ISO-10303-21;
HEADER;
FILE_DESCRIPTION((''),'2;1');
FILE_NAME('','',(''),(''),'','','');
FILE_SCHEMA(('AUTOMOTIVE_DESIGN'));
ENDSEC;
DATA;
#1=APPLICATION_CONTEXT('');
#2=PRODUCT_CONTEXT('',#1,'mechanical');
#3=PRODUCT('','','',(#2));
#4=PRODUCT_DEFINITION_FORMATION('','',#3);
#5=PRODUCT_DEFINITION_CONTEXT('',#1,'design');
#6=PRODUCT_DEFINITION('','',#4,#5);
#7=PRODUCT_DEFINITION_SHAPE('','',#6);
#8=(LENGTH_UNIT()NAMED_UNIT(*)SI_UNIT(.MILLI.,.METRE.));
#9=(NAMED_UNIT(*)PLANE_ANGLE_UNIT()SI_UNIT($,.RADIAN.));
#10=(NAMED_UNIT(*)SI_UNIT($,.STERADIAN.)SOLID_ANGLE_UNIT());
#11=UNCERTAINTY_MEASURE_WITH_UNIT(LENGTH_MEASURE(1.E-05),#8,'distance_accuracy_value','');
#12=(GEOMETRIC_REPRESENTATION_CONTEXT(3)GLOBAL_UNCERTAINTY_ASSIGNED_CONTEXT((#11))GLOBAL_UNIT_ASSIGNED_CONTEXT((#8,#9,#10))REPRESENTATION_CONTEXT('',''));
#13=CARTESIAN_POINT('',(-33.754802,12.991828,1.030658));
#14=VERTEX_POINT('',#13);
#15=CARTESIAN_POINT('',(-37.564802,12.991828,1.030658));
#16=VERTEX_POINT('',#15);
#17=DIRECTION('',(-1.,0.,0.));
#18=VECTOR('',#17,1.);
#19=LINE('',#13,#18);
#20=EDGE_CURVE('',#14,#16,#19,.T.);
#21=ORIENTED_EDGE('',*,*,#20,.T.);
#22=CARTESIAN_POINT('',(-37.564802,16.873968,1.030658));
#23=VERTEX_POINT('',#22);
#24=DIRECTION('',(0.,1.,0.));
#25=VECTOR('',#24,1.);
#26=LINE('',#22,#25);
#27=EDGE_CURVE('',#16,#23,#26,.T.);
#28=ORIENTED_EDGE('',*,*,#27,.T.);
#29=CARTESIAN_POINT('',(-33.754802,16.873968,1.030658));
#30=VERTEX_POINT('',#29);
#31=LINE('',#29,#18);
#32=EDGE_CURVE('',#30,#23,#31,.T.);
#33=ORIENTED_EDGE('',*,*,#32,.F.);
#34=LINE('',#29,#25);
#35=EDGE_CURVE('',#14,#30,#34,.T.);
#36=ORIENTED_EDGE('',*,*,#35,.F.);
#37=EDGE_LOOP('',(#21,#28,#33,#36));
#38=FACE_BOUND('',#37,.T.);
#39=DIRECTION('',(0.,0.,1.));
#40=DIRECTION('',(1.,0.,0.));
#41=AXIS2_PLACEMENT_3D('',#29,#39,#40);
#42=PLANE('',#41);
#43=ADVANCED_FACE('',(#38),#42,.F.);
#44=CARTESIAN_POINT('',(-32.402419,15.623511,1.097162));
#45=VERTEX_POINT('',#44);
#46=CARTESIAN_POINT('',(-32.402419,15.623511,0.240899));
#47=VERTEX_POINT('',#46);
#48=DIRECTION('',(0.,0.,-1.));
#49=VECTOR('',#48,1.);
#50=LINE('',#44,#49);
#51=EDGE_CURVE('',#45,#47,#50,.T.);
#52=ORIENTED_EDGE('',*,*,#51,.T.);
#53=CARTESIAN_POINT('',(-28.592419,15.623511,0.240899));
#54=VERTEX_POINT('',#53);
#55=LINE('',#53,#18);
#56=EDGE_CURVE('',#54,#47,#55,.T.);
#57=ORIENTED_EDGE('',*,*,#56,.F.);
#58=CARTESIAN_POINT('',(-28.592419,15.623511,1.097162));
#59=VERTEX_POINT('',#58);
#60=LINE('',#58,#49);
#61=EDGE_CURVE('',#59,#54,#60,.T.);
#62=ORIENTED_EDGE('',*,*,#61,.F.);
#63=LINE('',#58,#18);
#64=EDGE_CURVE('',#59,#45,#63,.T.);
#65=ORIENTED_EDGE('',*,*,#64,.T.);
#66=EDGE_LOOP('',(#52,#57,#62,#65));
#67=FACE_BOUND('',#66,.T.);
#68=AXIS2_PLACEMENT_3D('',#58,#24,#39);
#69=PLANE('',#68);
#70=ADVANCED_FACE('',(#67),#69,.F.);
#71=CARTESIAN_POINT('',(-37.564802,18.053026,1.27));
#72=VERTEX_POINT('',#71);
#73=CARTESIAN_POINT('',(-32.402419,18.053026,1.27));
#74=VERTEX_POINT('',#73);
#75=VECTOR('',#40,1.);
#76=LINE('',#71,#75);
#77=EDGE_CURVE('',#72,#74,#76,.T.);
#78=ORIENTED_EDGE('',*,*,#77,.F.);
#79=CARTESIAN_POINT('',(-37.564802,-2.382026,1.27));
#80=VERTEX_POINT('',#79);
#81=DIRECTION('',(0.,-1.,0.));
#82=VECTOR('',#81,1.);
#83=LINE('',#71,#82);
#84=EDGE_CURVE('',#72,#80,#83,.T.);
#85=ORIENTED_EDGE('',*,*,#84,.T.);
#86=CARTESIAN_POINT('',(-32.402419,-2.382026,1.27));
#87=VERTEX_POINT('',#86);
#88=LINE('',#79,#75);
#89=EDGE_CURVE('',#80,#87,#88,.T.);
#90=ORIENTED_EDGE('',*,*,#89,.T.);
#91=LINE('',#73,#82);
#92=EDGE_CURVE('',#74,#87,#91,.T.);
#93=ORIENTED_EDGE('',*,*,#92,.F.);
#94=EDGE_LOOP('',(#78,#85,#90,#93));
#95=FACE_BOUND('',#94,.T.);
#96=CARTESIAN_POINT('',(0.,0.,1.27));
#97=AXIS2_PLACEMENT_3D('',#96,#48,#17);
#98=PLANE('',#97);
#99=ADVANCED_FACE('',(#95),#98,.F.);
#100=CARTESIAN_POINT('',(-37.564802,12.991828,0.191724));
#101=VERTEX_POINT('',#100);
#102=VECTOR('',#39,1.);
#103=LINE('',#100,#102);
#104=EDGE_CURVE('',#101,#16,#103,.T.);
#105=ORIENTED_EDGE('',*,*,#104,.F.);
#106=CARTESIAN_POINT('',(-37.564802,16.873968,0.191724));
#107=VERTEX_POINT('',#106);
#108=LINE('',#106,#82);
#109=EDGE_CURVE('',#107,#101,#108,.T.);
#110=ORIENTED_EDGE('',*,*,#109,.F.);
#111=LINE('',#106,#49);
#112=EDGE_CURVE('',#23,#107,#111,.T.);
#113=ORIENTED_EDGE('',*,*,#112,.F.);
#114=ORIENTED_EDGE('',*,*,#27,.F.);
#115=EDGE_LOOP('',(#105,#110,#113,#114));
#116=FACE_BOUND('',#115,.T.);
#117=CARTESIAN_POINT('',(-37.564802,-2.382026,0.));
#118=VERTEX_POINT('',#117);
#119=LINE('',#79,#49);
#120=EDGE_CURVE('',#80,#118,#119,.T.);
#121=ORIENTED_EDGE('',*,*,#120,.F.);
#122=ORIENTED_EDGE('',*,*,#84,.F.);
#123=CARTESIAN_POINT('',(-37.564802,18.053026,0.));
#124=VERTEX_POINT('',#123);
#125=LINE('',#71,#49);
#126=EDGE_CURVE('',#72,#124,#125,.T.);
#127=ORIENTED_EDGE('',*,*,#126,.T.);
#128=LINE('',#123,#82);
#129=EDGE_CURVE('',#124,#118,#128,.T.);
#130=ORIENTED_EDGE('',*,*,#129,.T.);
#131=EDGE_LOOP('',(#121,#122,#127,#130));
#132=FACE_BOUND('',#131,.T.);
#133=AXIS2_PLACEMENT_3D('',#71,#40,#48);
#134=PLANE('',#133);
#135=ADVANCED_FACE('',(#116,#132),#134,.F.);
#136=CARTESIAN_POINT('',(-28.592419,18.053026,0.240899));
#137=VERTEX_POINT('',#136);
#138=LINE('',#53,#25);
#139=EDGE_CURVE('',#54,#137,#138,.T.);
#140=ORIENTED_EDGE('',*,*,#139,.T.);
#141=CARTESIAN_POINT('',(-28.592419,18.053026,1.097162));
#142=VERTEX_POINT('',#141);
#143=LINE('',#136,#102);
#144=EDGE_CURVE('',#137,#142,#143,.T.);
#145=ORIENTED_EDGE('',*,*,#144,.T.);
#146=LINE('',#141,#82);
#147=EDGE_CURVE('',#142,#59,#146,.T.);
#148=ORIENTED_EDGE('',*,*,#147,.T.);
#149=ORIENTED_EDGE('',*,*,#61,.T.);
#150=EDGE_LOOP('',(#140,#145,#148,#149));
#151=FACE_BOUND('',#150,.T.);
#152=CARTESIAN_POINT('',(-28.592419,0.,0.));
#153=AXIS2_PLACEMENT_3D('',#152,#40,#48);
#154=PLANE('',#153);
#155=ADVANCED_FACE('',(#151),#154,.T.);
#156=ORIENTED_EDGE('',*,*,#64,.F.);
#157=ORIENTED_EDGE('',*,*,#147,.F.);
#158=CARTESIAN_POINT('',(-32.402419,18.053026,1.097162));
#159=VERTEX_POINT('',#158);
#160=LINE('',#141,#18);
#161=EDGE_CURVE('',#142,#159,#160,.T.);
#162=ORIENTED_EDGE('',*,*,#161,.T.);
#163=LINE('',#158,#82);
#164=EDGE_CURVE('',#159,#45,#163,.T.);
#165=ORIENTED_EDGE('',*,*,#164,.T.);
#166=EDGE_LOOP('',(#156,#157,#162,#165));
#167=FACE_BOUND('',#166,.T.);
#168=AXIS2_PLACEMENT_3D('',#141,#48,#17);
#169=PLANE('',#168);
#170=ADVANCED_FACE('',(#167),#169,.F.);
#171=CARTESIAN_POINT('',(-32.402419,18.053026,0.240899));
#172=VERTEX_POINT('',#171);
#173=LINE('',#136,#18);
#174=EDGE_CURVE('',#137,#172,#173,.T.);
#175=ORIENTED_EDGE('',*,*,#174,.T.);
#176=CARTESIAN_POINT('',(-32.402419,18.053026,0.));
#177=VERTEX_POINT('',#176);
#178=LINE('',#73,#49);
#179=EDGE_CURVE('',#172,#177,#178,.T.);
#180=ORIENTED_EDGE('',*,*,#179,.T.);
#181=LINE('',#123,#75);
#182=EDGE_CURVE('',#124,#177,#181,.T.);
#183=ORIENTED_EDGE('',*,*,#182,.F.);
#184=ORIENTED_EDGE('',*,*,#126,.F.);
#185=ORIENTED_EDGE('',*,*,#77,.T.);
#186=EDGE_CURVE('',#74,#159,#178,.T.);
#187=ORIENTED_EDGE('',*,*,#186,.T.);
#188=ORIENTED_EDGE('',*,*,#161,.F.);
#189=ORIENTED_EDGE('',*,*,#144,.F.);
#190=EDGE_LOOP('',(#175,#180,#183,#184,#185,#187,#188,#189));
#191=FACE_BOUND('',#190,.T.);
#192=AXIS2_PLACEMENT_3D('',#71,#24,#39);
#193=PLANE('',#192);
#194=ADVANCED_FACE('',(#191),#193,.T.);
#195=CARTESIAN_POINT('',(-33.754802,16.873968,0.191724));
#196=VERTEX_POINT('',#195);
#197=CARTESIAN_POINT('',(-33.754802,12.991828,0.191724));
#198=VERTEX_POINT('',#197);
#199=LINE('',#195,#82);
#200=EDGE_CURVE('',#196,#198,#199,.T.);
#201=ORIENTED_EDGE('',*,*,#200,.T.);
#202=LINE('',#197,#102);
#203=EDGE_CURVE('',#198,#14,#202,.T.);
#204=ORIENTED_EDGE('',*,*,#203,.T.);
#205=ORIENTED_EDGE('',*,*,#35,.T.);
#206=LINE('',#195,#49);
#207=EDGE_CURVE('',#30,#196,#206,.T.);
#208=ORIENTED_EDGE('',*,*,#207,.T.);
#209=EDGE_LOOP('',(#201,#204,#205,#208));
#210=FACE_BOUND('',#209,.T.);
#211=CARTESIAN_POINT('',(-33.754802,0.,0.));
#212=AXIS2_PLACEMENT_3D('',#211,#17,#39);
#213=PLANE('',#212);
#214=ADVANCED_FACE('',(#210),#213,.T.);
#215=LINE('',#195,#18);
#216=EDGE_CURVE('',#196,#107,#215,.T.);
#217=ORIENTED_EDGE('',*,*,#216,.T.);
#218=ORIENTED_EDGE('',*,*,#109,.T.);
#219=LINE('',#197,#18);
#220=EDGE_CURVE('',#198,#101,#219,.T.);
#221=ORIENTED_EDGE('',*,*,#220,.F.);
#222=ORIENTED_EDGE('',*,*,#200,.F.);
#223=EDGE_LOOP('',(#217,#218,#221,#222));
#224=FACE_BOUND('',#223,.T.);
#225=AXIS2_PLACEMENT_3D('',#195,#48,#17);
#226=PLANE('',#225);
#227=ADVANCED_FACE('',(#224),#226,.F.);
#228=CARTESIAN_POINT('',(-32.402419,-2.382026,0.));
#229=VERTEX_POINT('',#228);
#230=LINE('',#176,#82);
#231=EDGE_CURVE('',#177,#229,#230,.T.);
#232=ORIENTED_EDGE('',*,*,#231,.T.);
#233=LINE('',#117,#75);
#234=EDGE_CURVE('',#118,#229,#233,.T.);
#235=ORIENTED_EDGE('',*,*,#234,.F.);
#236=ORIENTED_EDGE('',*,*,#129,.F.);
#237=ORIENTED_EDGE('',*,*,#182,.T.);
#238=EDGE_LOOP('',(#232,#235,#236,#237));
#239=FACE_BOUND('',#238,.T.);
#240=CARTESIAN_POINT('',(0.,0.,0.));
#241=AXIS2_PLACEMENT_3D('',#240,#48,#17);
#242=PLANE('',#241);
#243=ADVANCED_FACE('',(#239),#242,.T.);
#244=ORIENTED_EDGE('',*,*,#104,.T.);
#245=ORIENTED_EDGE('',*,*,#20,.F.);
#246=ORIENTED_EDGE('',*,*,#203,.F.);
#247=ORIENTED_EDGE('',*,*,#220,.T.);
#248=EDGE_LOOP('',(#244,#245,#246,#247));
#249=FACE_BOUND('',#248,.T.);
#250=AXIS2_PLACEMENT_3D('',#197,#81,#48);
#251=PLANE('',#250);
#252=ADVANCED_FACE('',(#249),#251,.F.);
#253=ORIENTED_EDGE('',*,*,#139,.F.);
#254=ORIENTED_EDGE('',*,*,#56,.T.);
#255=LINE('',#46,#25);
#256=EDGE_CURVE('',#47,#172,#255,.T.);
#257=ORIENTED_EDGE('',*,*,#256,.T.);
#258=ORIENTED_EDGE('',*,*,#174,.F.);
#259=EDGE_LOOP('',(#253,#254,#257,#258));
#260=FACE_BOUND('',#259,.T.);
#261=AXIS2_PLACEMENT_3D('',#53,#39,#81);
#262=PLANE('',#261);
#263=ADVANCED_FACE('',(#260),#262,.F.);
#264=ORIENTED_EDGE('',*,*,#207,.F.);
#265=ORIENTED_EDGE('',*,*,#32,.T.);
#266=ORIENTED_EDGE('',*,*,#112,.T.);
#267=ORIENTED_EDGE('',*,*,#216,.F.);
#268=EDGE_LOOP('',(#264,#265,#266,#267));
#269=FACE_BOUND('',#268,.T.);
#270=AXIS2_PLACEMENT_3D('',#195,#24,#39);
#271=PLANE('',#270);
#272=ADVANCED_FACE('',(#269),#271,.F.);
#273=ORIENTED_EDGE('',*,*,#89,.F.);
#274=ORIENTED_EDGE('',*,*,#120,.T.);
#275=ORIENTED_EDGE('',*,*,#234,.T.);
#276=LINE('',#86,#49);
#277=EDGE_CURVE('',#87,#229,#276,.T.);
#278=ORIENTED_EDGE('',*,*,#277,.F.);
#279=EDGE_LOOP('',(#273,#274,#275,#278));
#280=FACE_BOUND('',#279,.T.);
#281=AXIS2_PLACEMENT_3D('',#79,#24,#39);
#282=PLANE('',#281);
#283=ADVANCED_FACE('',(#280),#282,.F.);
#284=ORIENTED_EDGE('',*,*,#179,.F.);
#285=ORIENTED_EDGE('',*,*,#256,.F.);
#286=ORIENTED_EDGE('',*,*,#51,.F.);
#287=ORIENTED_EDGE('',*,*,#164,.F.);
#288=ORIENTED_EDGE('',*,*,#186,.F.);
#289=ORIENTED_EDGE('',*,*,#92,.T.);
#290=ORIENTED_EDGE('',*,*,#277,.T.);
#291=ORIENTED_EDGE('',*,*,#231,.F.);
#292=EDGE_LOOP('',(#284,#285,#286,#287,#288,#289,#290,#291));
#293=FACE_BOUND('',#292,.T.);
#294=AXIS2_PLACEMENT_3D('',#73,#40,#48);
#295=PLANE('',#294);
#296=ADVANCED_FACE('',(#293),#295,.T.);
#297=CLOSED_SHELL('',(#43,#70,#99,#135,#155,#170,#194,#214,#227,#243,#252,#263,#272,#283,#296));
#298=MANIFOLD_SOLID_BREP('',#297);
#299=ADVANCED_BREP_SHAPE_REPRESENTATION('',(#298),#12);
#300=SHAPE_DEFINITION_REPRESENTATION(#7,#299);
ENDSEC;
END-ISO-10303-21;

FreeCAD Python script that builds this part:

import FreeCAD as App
import Part
import Sketcher
from FreeCAD import Vector
Q = App.Units.Quantity

doc = App.newDocument("Part")
body = doc.addObject("PartDesign::Body", "Body")

# Sketch on XY plane
sketch1 = body.newObject("Sketcher::SketchObject", "Sketch")
sketch1.AttachmentSupport = (doc.getObject("XY_Plane"), [""])
sketch1.MapMode = "FlatFace"
sketch1.addGeometry([
    Part.LineSegment(Vector(-38, 18, 0), Vector(-38, -2, 0)),
    Part.LineSegment(Vector(-38, -2, 0), Vector(-32, -2, 0)),
    Part.LineSegment(Vector(-32, -2, 0), Vector(-32, 18, 0)),
    Part.LineSegment(Vector(-32, 18, 0), Vector(-38, 18, 0)),
], False)
sketch1.addConstraint([
    Sketcher.Constraint("Coincident", 0, 2, 1, 1),
    Sketcher.Constraint("Coincident", 1, 2, 2, 1),
    Sketcher.Constraint("Coincident", 2, 2, 3, 1),
    Sketcher.Constraint("Coincident", 3, 2, 0, 1),
    Sketcher.Constraint("Vertical", 0),
    Sketcher.Constraint("Horizontal", 1),
    Sketcher.Constraint("Vertical", 2),
    Sketcher.Constraint("Horizontal", 3),
    Sketcher.Constraint("DistanceX", 0, 2, -1, 1, Q("37.564802 mm")),
    Sketcher.Constraint("DistanceX", 1, 1, 1, 2, Q("5.162383 mm")),
    Sketcher.Constraint("DistanceY", 0, 2, 0, 1, Q("20.435052 mm")),
    Sketcher.Constraint("DistanceY", 0, 2, -1, 1, Q("2.382026 mm")),
])
pad1 = body.newObject("PartDesign::Pad", "Pad")
pad1.Profile = sketch1
pad1.Length = Q("0.05 in")

# Sketch on YZ plane
sketch2 = body.newObject("Sketcher::SketchObject", "Sketch001")
sketch2.AttachmentSupport = (doc.getObject("YZ_Plane"), [""])
sketch2.MapMode = "FlatFace"
sketch2.AttachmentOffset = App.Placement(Vector(0, 0, -37.564802), App.Rotation())
sketch2.addGeometry([
    Part.LineSegment(Vector(16.9, 0.2, 0), Vector(13, 0.2, 0)),
    Part.LineSegment(Vector(13, 0.2, 0), Vector(13, 1, 0)),
    Part.LineSegment(Vector(13, 1, 0), Vector(16.9, 1, 0)),
    Part.LineSegment(Vector(16.9, 1, 0), Vector(16.9, 0.2, 0)),
], False)
sketch2.addConstraint([
    Sketcher.Constraint("Coincident", 0, 2, 1, 1),
    Sketcher.Constraint("Coincident", 1, 2, 2, 1),
    Sketcher.Constraint("Coincident", 2, 2, 3, 1),
    Sketcher.Constraint("Coincident", 3, 2, 0, 1),
    Sketcher.Constraint("Horizontal", 0),
    Sketcher.Constraint("Vertical", 1),
    Sketcher.Constraint("Horizontal", 2),
    Sketcher.Constraint("Vertical", 3),
    Sketcher.Constraint("DistanceX", 0, 2, 0, 1, Q("3.88214 mm")),
    Sketcher.Constraint("DistanceY", 1, 1, 1, 2, Q("0.838934 mm")),
    Sketcher.Constraint("DistanceY", -1, 1, 1, 2, Q("1.030658 mm")),
    Sketcher.Constraint("DistanceX", -1, 1, 2, 2, Q("16.873968 mm")),
])
pocket1 = body.newObject("PartDesign::Pocket", "Pocket")
pocket1.Profile = sketch2
pocket1.Length = Q("0.15 in")
pocket1.Reversed = True

# Sketch on YZ plane
sketch3 = body.newObject("Sketcher::SketchObject", "Sketch002")
sketch3.AttachmentSupport = (doc.getObject("YZ_Plane"), [""])
sketch3.MapMode = "FlatFace"
sketch3.AttachmentOffset = App.Placement(Vector(0, 0, -32.402419), App.Rotation())
sketch3.addGeometry([
    Part.LineSegment(Vector(18.1, 1.1, 0), Vector(15.6, 1.1, 0)),
    Part.LineSegment(Vector(15.6, 1.1, 0), Vector(15.6, 0.2, 0)),
    Part.LineSegment(Vector(15.6, 0.2, 0), Vector(18.1, 0.2, 0)),
    Part.LineSegment(Vector(18.1, 0.2, 0), Vector(18.1, 1.1, 0)),
], False)
sketch3.addConstraint([
    Sketcher.Constraint("Coincident", 0, 2, 1, 1),
    Sketcher.Constraint("Coincident", 1, 2, 2, 1),
    Sketcher.Constraint("Coincident", 2, 2, 3, 1),
    Sketcher.Constraint("Coincident", 3, 2, 0, 1),
    Sketcher.Constraint("Horizontal", 0),
    Sketcher.Constraint("Vertical", 1),
    Sketcher.Constraint("Horizontal", 2),
    Sketcher.Constraint("Vertical", 3),
    Sketcher.Constraint("DistanceY", -1, 1, 1, 2, Q("0.240899 mm")),
    Sketcher.Constraint("DistanceX", 0, 2, 0, 1, Q("2.429515 mm")),
    Sketcher.Constraint("DistanceY", 1, 2, 1, 1, Q("0.856263 mm")),
    Sketcher.Constraint("DistanceX", -1, 1, 0, 2, Q("15.623511 mm")),
])
pad2 = body.newObject("PartDesign::Pad", "Pad001")
pad2.Profile = sketch3
pad2.Length = Q("0.15 in")

doc.recompute()
